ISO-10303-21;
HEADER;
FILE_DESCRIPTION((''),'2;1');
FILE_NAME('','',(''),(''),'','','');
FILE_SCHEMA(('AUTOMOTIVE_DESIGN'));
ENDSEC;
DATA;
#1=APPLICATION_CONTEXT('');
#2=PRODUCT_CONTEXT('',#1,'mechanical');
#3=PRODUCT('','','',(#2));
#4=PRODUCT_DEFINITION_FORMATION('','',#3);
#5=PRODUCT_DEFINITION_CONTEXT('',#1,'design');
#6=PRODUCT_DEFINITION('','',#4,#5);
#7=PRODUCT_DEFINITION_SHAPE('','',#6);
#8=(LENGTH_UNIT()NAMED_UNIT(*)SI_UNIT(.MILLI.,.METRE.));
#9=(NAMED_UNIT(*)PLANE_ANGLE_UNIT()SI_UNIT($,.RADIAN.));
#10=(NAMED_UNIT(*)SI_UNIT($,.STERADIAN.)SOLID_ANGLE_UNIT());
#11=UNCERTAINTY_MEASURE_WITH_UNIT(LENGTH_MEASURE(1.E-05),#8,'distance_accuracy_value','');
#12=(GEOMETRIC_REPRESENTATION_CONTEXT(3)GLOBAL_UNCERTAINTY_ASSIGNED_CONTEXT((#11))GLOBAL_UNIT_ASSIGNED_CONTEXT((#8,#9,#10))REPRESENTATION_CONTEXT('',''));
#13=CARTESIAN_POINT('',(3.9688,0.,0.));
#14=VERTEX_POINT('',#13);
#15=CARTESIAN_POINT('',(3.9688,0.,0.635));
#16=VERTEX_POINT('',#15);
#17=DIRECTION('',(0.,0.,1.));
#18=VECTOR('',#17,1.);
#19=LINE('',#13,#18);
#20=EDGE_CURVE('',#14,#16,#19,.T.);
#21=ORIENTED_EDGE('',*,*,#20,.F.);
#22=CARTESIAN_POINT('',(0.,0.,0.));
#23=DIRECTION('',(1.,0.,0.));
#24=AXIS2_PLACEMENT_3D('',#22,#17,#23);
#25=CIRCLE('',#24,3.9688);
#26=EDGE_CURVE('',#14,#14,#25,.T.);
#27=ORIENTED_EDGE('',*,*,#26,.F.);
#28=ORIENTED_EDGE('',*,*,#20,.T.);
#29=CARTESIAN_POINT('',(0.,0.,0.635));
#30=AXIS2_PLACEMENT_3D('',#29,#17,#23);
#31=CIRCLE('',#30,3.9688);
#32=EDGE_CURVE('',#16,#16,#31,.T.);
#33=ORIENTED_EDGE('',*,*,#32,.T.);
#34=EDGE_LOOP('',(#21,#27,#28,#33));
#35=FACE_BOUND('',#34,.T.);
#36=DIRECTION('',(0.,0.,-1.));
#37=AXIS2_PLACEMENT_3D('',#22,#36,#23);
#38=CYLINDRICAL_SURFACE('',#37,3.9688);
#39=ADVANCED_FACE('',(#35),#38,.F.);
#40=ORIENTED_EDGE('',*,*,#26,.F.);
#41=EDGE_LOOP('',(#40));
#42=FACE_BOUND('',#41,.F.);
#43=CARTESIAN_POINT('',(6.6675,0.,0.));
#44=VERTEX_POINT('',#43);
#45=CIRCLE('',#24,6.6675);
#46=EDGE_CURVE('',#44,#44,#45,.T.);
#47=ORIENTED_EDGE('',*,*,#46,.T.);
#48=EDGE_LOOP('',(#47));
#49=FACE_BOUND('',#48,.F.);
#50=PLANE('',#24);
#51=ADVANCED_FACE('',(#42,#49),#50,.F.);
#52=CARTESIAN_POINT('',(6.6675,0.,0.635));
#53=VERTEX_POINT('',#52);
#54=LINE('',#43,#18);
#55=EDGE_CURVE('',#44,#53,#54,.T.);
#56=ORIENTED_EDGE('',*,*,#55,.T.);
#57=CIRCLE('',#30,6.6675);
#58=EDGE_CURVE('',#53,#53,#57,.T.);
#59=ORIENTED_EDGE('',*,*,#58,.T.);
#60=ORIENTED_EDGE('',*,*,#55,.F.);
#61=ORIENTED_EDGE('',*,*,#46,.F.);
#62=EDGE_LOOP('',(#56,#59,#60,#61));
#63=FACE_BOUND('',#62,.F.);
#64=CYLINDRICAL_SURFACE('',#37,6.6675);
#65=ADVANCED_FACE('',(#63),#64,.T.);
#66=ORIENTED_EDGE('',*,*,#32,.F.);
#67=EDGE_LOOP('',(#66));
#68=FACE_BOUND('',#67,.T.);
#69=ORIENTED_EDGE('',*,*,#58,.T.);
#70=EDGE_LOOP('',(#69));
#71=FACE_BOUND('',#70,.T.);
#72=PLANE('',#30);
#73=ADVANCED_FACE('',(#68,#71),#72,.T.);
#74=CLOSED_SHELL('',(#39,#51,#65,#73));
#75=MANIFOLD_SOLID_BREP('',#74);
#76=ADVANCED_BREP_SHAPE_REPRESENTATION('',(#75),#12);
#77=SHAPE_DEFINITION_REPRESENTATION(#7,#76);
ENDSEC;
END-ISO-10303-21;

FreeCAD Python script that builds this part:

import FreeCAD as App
import Part
import Sketcher
Q = App.Units.Quantity

doc = App.newDocument("Part")
body = doc.addObject("PartDesign::Body", "Body")

# Sketch on XY plane
sketch1 = body.newObject("Sketcher::SketchObject", "Sketch")
sketch1.AttachmentSupport = (doc.getObject("XY_Plane"), [""])
sketch1.MapMode = "FlatFace"
sketch1.addGeometry([
    Part.Circle(App.Vector(0, 0, 0), App.Vector(0, 0, 1), 6.7),
    Part.Circle(App.Vector(0, 0, 0), App.Vector(0, 0, 1), 4),
], False)
sketch1.addConstraint([
    Sketcher.Constraint("Coincident", 0, 3, -1, 1),
    Sketcher.Constraint("Coincident", 1, 3, -1, 1),
    Sketcher.Constraint("Diameter", 0, Q("0.525 in")),
    Sketcher.Constraint("Diameter", 1, Q("0.3125 in")),
])
pad1 = body.newObject("PartDesign::Pad", "Pad")
pad1.Profile = sketch1
pad1.Length = Q("0.025 in")

doc.recompute()
